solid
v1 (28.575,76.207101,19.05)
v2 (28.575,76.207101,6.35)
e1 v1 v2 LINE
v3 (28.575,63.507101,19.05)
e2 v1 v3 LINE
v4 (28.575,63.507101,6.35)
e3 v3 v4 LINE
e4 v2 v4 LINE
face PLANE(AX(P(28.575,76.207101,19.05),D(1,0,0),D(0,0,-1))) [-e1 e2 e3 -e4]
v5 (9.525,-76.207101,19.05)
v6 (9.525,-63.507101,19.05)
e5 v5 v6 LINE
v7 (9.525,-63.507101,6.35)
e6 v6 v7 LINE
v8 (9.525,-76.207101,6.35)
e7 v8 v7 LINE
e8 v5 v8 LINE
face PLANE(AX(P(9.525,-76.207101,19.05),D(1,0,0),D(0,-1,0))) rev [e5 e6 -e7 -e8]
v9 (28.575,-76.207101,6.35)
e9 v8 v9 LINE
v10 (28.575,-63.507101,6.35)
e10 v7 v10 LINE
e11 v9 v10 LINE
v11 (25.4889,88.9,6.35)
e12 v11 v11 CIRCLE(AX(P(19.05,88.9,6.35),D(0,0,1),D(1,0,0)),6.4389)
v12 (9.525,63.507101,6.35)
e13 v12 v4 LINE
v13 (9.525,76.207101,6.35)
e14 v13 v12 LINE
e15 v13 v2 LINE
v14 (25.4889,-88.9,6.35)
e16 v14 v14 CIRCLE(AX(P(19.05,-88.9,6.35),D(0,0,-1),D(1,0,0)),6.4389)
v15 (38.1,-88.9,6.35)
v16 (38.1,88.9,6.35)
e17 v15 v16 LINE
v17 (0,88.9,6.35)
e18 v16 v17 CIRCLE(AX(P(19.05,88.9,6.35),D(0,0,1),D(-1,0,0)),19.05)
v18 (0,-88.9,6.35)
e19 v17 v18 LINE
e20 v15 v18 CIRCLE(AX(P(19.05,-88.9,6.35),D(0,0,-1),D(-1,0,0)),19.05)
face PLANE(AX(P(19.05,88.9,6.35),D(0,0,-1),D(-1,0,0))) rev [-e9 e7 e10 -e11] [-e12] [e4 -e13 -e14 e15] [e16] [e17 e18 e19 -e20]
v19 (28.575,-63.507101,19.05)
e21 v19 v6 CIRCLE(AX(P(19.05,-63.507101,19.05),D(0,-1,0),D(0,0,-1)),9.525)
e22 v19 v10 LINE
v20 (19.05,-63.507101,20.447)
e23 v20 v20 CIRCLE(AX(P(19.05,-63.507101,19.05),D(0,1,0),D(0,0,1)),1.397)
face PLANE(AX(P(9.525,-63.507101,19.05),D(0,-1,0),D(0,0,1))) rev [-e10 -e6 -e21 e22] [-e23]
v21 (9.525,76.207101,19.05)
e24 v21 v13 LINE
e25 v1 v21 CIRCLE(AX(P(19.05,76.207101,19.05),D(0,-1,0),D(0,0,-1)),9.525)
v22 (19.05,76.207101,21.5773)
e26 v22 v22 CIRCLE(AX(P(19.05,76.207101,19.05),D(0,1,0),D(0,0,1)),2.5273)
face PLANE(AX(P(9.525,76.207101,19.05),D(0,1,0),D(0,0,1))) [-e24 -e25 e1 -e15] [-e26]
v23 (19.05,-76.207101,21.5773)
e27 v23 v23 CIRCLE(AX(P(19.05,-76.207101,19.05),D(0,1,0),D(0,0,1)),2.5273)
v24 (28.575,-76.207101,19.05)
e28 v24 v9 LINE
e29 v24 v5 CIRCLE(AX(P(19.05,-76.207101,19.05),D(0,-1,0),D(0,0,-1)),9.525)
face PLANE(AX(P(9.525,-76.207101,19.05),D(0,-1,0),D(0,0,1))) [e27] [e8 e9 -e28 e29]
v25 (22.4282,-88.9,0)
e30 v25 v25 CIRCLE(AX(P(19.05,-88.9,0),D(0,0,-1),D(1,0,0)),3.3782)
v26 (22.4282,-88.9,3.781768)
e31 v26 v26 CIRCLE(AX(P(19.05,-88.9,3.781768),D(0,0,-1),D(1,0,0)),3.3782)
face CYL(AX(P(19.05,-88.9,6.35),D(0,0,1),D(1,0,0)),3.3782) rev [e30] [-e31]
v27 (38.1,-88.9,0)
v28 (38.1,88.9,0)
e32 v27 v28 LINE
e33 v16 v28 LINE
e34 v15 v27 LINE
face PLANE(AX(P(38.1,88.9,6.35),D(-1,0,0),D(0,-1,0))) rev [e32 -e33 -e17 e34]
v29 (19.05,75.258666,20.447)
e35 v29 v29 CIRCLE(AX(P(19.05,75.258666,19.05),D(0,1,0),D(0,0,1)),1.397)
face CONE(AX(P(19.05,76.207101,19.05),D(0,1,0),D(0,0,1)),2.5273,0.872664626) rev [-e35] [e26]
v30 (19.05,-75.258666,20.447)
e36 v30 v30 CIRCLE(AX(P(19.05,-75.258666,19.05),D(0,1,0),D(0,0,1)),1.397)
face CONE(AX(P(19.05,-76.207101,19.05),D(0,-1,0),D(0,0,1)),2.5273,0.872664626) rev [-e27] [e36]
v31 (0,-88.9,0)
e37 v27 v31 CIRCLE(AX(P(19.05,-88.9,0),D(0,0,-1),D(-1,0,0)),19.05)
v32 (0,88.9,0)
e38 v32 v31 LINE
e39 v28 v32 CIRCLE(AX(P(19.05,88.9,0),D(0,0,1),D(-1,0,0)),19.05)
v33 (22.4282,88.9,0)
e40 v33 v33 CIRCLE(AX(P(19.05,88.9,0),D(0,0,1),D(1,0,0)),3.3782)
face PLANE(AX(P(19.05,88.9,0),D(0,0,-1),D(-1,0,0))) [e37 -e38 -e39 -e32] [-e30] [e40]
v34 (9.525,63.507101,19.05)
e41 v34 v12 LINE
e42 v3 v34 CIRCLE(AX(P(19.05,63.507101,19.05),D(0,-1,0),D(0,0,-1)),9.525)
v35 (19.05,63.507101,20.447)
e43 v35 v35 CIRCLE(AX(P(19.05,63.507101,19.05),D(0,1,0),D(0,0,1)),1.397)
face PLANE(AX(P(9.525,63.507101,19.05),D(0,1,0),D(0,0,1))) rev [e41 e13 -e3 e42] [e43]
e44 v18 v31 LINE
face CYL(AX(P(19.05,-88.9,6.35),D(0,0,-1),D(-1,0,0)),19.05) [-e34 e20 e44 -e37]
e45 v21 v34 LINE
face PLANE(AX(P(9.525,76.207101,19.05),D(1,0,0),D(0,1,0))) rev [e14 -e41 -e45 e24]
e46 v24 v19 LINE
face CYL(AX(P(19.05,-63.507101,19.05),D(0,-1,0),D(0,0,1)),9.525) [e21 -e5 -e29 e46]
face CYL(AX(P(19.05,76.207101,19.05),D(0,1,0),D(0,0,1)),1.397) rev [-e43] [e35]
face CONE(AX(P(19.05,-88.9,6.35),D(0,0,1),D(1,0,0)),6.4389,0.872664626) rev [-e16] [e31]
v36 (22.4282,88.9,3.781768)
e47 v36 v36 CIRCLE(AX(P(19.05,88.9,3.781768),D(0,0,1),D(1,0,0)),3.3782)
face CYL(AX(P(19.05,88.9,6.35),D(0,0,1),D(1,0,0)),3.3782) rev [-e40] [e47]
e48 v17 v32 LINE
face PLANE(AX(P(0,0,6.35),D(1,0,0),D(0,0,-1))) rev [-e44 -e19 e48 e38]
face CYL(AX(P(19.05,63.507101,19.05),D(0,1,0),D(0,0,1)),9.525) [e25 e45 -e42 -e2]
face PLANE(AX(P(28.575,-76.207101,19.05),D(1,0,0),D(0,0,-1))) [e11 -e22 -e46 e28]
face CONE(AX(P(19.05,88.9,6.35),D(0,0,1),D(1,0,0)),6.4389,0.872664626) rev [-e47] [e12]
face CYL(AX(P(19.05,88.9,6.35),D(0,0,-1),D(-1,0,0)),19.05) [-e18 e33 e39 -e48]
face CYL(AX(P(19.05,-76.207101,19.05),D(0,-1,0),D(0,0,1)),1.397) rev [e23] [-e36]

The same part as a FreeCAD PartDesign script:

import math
import FreeCAD as App
import Part
import Sketcher

V = App.Vector
Q = App.Units.Quantity

doc = App.newDocument("Part")
body = doc.addObject("PartDesign::Body", "Body")

# Sketch on XY plane
sketch1 = body.newObject("Sketcher::SketchObject", "Sketch")
sketch1.AttachmentSupport = (doc.getObject("XY_Plane"), [""])
sketch1.MapMode = "FlatFace"
sketch1.addGeometry([
    Part.LineSegment(V(0, 89, 0), V(0, 0, 0)),
    Part.LineSegment(V(0, 0, 0), V(38, 0, 0)),
    Part.LineSegment(V(38, 0, 0), V(38, 89, 0)),
    Part.ArcOfCircle(Part.Circle(V(19, 89, 0), V(0, 0, 1), 19), math.radians(0), math.radians(180)),
], False)
sketch1.addConstraint([
    Sketcher.Constraint("Coincident", 0, 2, 1, 1),
    Sketcher.Constraint("Coincident", 1, 2, 2, 1),
    Sketcher.Constraint("Tangent", 2, 2, 3, 1),
    Sketcher.Constraint("Tangent", 3, 2, 0, 1),
    Sketcher.Constraint("Vertical", 0),
    Sketcher.Constraint("Horizontal", 1),
    Sketcher.Constraint("Vertical", 2),
    Sketcher.Constraint("Coincident", 0, 2, -1, 1),
    Sketcher.Constraint("Radius", 3, Q("0.75 in")),
    Sketcher.Constraint("DistanceY", 0, 2, 0, 1, Q("3.5 in")),
])
pad1 = body.newObject("PartDesign::Pad", "Pad")
pad1.Profile = sketch1
pad1.Length = Q("0.25 in")

# Sketch on XY plane
sketch2 = body.newObject("Sketcher::SketchObject", "Sketch001")
sketch2.AttachmentSupport = (doc.getObject("XY_Plane"), [""])
sketch2.MapMode = "FlatFace"
sketch2.AttachmentOffset = App.Placement(V(0, 0, 0.25 * 25.4), App.Rotation())
sketch2.addGeometry(Part.Circle(V(19.1, 88.9, 0), V(0, 0, 1), 3.4), False)
sketch2.addConstraint([
    Sketcher.Constraint("Diameter", 0, Q("0.266 in")),
    Sketcher.Constraint("DistanceY", -1, 1, 0, 3, Q("3.5 in")),
    Sketcher.Constraint("DistanceX", -1, 1, 0, 3, Q("0.75 in")),
])
doc.recompute()
hole = body.newObject("PartDesign::Hole", "Hole")
hole.Profile = sketch2
hole.ThreadType = "None"
hole.Diameter = Q("0.266 in")
hole.DepthType = "ThroughAll"
hole.HoleCutType = "Countersink"
hole.HoleCutDiameter = Q("0.507 in")
hole.HoleCutCountersinkAngle = 100

# Sketch on XY plane
sketch3 = body.newObject("Sketcher::SketchObject", "Sketch002")
sketch3.AttachmentSupport = (doc.getObject("XY_Plane"), [""])
sketch3.MapMode = "FlatFace"
sketch3.AttachmentOffset = App.Placement(V(0, 0, 0.25 * 25.4), App.Rotation())
sketch3.addGeometry([
    Part.LineSegment(V(10, 76, 0), V(10, 64, 0)),
    Part.LineSegment(V(10, 64, 0), V(29, 64, 0)),
    Part.LineSegment(V(29, 64, 0), V(29, 76, 0)),
    Part.LineSegment(V(29, 76, 0), V(10, 76, 0)),
], False)
sketch3.addConstraint([
    Sketcher.Constraint("Coincident", 0, 2, 1, 1),
    Sketcher.Constraint("Coincident", 1, 2, 2, 1),
    Sketcher.Constraint("Coincident", 2, 2, 3, 1),
    Sketcher.Constraint("Coincident", 3, 2, 0, 1),
    Sketcher.Constraint("Vertical", 0),
    Sketcher.Constraint("Horizontal", 1),
    Sketcher.Constraint("Vertical", 2),
    Sketcher.Constraint("Horizontal", 3),
    Sketcher.Constraint("DistanceY", 0, 2, 0, 1, Q("0.5 in")),
    Sketcher.Constraint("DistanceX", 1, 1, 1, 2, Q("0.75 in")),
    Sketcher.Constraint("DistanceX", -1, 1, 0, 2, Q("0.375 in")),
    Sketcher.Constraint("DistanceY", -1, 1, 0, 2, Q("63.507101 mm")),
])
pad2 = body.newObject("PartDesign::Pad", "Pad001")
pad2.Profile = sketch3
pad2.Length = Q("0.5 in")

# Sketch on XZ plane
sketch4 = body.newObject("Sketcher::SketchObject", "Sketch003")
sketch4.AttachmentSupport = (doc.getObject("XZ_Plane"), [""])
sketch4.MapMode = "FlatFace"
sketch4.AttachmentOffset = App.Placement(V(0, 0, -76.207101), App.Rotation())
sketch4.addGeometry([
    Part.LineSegment(V(29, 19, 0), V(10, 19, 0)),
    Part.ArcOfCircle(Part.Circle(V(19, 19, 0), V(0, 0, 1), 10), math.radians(0), math.radians(180)),
], False)
sketch4.addConstraint([
    Sketcher.Constraint("Coincident", 0, 1, 1, 1),
    Sketcher.Constraint("Coincident", 1, 2, 0, 2),
    Sketcher.Constraint("Horizontal", 0),
    Sketcher.Constraint("Horizontal", 1, 3, 0, 1),
    Sketcher.Constraint("Radius", 1, Q("0.375 in")),
    Sketcher.Constraint("DistanceX", -1, 1, 1, 3, Q("0.75 in")),
    Sketcher.Constraint("DistanceY", -1, 1, 1, 3, Q("0.75 in")),
])
pad3 = body.newObject("PartDesign::Pad", "Pad002")
pad3.Profile = sketch4
pad3.Length = Q("0.5 in")

# Sketch on XZ plane
sketch5 = body.newObject("Sketcher::SketchObject", "Sketch004")
sketch5.AttachmentSupport = (doc.getObject("XZ_Plane"), [""])
sketch5.MapMode = "FlatFace"
sketch5.AttachmentOffset = App.Placement(V(0, 0, -76.207101), App.Rotation())
sketch5.addGeometry(Part.Circle(V(19.1, 19.1, 0), V(0, 0, 1), 1.4), False)
sketch5.addConstraint([
    Sketcher.Constraint("Diameter", 0, Q("0.11 in")),
    Sketcher.Constraint("DistanceX", -1, 1, 0, 3, Q("0.75 in")),
    Sketcher.Constraint("DistanceY", -1, 1, 0, 3, Q("0.75 in")),
])
doc.recompute()
hole2 = body.newObject("PartDesign::Hole", "Hole001")
hole2.Profile = sketch5
hole2.ThreadType = "None"
hole2.Diameter = Q("0.11 in")
hole2.DepthType = "ThroughAll"
hole2.HoleCutType = "Countersink"
hole2.HoleCutDiameter = Q("0.199 in")
hole2.HoleCutCountersinkAngle = 100
hole2.Reversed = True
body2 = doc.addObject("PartDesign::Body", "Body001")
doc.recompute()

body2.BaseFeature = body
doc.recompute()

mirroring = doc.addObject("Part::Mirroring", "Mirroring")
mirroring.Source = body
mirroring.Base = V(38.1, 0, 6.35)
mirroring.Normal = V(0, 1, 0)
body3 = doc.addObject("PartDesign::Body", "Body002")
body3.BaseFeature = mirroring
boolean = body2.newObject("PartDesign::Boolean", "Boolean")
boolean.Type = "Fuse"
boolean.addObjects([body3])
doc.recompute()
mirroring.Visibility = False

doc.recompute()
